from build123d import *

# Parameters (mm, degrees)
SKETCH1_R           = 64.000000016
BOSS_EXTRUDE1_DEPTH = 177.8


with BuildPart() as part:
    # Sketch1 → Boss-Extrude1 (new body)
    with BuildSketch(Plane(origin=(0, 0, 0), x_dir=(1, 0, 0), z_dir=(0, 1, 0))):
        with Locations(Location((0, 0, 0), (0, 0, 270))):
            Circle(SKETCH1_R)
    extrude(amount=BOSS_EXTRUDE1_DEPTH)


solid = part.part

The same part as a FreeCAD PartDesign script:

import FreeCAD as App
import Part
import Sketcher
from FreeCAD import Vector
Q = App.Units.Quantity

doc = App.newDocument("Part")
body = doc.addObject("PartDesign::Body", "Body")

sketch1 = body.newObject("Sketcher::SketchObject", "Sketch")
sketch1.AttachmentSupport = (doc.getObject("XZ_Plane"), [""])
sketch1.MapMode = "FlatFace"
sketch1.addGeometry(Part.Circle(Vector(0, 0, 0), Vector(0, 0, 1), 64), False)
sketch1.addConstraint([
    Sketcher.Constraint("Coincident", 0, 3, -1, 1),
    Sketcher.Constraint("Diameter", 0, Q("128 mm")),
])
pad1 = body.newObject("PartDesign::Pad", "Pad")
pad1.Profile = sketch1
pad1.Length = 177.8
pad1.Reversed = True

doc.recompute()
